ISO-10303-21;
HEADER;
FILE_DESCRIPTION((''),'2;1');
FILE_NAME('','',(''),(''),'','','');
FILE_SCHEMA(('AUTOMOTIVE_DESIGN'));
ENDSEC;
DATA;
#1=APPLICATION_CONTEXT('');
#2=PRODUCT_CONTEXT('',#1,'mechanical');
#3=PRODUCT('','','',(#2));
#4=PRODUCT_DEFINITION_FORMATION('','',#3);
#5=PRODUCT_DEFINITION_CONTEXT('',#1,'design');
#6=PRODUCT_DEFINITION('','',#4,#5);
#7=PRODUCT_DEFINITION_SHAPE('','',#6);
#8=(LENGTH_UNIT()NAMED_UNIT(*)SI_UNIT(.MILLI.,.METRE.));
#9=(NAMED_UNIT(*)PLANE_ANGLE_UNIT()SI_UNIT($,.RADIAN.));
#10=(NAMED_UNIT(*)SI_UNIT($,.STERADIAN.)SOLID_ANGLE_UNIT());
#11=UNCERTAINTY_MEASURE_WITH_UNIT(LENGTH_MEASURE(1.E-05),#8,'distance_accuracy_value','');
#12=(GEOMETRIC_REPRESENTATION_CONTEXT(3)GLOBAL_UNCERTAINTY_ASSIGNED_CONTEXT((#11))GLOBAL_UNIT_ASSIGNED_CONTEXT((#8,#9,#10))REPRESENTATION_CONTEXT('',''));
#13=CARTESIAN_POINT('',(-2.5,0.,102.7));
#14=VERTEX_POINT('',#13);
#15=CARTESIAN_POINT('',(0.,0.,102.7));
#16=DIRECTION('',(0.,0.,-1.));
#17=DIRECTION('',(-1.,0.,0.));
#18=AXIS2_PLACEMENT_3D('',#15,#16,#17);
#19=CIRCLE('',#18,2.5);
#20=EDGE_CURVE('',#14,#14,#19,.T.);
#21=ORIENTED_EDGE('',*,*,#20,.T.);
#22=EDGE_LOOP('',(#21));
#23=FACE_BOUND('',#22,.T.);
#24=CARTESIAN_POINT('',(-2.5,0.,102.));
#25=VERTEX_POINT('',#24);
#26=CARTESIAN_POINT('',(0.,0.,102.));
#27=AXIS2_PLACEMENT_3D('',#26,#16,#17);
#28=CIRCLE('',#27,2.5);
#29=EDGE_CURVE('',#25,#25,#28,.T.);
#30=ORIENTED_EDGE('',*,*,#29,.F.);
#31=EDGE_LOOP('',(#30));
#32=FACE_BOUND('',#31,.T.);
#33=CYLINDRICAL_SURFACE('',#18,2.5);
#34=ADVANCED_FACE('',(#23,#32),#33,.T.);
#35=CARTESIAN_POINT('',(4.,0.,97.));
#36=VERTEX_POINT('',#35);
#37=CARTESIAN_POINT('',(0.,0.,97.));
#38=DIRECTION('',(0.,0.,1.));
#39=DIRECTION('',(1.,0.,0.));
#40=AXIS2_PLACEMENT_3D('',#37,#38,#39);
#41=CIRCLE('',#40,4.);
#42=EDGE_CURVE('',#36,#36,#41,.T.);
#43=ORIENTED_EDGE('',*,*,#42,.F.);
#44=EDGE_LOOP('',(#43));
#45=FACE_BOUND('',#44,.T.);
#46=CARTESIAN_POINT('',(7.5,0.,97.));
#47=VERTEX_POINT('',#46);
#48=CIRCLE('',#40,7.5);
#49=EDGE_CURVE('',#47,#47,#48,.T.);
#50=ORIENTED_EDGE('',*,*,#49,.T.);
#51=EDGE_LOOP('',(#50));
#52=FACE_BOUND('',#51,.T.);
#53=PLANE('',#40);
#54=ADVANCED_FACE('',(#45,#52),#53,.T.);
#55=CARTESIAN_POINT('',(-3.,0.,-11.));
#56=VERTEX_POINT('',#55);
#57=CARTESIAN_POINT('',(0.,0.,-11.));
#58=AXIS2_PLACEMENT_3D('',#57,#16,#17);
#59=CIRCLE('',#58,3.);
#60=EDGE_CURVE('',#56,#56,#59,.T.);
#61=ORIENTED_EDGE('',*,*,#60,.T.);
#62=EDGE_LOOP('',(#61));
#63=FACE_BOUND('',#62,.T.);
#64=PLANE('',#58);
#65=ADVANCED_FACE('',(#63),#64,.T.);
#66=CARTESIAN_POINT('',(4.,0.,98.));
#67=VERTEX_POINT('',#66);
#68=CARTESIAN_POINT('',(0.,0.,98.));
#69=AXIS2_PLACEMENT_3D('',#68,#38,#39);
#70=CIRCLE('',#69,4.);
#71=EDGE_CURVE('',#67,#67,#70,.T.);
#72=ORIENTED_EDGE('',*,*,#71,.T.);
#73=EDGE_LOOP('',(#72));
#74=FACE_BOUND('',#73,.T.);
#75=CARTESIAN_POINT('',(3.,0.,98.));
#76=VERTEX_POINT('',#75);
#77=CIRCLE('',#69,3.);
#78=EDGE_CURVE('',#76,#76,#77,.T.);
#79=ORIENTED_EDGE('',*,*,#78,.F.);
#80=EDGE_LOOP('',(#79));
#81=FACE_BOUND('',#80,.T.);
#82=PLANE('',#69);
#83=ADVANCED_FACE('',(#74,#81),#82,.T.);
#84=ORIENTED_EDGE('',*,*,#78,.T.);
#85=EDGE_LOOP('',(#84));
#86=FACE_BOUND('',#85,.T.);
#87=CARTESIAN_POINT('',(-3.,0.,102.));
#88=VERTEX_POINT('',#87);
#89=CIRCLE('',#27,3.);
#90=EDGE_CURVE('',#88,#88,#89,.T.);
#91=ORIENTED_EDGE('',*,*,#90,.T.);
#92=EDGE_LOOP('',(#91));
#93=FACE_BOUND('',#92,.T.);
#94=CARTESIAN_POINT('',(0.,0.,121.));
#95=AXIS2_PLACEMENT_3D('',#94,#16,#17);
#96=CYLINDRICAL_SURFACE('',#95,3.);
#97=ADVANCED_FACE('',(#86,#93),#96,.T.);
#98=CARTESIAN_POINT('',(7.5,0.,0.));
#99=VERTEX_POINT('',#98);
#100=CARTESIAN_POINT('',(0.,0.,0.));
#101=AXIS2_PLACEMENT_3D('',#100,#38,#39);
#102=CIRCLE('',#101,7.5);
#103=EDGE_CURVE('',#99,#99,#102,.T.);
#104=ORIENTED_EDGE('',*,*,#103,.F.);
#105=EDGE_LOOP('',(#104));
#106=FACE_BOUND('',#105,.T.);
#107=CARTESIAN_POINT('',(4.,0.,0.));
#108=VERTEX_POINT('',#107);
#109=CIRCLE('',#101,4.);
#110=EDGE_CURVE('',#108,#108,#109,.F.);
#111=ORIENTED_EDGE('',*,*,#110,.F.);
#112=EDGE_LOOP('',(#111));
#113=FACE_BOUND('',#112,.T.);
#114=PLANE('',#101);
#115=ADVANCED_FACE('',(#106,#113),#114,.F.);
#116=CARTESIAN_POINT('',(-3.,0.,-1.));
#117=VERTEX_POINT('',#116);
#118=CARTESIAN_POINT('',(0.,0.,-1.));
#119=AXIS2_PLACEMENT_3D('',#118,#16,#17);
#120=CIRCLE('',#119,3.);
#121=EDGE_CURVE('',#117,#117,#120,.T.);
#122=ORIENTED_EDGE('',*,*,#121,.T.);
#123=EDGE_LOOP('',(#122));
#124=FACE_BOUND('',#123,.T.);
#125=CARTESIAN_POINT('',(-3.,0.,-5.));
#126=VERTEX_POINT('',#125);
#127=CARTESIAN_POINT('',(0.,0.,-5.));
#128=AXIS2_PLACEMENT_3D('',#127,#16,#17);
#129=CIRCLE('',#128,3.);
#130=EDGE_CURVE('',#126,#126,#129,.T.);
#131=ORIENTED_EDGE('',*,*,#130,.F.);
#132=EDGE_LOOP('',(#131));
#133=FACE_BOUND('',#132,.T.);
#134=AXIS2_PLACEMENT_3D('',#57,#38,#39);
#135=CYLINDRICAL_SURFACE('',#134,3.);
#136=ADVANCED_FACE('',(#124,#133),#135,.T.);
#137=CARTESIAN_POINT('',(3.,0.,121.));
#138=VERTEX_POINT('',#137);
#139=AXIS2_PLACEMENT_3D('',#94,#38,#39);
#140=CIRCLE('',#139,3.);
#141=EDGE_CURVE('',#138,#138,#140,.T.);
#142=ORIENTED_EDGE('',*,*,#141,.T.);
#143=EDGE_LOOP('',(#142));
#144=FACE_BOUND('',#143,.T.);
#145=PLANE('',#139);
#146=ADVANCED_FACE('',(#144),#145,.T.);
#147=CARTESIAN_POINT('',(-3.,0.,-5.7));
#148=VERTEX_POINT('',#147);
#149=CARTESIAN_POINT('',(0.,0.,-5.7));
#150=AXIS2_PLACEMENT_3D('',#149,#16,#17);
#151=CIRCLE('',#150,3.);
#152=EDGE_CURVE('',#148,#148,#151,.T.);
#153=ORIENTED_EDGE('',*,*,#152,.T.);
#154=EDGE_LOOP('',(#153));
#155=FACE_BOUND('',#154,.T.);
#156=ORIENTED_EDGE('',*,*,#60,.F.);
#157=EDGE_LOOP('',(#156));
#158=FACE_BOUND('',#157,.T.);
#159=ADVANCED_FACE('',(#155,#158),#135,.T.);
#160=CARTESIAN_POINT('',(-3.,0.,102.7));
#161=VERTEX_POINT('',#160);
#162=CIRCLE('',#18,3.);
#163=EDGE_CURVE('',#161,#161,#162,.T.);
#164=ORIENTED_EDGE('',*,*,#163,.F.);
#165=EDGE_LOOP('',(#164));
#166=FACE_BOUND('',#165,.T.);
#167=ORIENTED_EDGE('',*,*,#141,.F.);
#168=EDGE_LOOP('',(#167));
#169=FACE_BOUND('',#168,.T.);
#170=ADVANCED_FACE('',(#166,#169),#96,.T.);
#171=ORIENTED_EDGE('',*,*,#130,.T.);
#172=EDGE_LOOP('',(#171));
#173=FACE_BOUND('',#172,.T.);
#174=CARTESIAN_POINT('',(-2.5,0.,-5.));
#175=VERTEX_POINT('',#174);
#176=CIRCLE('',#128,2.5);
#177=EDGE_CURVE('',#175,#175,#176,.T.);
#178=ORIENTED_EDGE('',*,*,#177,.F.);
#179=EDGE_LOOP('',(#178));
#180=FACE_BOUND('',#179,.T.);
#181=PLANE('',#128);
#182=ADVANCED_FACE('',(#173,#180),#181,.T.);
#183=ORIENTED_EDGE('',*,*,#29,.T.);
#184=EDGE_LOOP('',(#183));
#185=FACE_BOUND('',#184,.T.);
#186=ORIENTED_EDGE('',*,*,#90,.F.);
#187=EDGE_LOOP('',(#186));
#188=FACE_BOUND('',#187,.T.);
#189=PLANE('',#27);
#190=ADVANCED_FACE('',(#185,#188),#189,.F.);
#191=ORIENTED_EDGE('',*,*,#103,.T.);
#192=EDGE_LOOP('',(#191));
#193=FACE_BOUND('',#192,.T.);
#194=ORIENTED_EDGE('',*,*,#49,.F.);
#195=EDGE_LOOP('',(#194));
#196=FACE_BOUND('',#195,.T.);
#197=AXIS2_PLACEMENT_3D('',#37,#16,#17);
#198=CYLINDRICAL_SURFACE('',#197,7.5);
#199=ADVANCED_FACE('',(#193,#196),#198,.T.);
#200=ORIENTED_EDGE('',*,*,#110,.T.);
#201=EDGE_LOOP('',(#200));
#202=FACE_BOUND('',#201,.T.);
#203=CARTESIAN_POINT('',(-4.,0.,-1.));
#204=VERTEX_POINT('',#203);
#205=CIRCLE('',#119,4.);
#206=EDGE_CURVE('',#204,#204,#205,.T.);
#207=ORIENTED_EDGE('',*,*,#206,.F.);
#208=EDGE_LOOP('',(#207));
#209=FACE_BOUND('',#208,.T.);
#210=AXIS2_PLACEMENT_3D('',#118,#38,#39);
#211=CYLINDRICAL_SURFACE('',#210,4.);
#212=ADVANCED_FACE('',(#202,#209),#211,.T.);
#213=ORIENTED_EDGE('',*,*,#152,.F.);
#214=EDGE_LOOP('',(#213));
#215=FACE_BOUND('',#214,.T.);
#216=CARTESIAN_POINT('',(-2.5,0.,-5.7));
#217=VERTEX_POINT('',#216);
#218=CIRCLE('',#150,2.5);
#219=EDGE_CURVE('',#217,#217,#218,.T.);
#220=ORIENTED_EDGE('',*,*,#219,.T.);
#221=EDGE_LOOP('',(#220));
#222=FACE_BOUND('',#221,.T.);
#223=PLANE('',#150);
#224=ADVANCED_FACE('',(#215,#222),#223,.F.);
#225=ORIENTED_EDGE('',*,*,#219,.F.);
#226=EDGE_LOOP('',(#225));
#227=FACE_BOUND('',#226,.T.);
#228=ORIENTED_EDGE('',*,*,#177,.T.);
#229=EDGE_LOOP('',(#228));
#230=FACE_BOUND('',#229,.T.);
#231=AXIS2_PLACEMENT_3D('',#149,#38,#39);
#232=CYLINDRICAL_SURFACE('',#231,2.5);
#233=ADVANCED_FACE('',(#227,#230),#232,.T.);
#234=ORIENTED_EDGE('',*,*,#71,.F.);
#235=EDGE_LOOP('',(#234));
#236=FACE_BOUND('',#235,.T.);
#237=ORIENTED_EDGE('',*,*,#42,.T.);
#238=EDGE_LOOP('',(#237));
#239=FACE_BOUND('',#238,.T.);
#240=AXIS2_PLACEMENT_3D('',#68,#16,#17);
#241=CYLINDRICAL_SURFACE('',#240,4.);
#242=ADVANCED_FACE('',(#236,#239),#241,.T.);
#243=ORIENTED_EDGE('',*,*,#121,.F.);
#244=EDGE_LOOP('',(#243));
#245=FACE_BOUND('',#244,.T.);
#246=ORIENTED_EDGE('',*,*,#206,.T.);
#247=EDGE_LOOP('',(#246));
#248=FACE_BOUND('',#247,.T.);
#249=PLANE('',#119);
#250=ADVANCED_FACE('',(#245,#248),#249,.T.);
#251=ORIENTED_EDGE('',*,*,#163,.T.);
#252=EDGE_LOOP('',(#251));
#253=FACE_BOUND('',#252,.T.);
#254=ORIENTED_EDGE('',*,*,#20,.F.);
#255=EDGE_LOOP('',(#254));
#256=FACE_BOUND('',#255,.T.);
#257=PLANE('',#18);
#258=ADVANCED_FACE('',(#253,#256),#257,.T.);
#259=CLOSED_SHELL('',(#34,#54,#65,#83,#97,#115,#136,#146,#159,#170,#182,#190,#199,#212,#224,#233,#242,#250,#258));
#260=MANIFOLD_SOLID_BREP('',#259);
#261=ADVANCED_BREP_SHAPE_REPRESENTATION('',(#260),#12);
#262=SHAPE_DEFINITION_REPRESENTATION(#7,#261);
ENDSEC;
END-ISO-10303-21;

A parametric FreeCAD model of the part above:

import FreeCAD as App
import Part
import Sketcher
from FreeCAD import Vector
Q = App.Units.Quantity

doc = App.newDocument("Part")
body = doc.addObject("PartDesign::Body", "Body")

sketch1 = doc.addObject("Sketcher::SketchObject", "Sketch")
body.addObject(sketch1)
sketch1.AttachmentSupport = (doc.XY_Plane, [""])
sketch1.MapMode = "FlatFace"
sketch1.addGeometry(Part.Circle(Vector(0, 0, 0), Vector(0, 0, 1), 7.5), False)
sketch1.addConstraint([
    Sketcher.Constraint("Coincident", 0, 3, -1, 1),
    Sketcher.Constraint("Diameter", 0, Q("15 mm")),
])
pad1 = doc.addObject("PartDesign::Pad", "Pad")
body.addObject(pad1)
pad1.Profile = sketch1
pad1.Length = 97

sketch2 = doc.addObject("Sketcher::SketchObject", "Sketch001")
body.addObject(sketch2)
sketch2.AttachmentSupport = (doc.XY_Plane, [""])
sketch2.MapMode = "FlatFace"
sketch2.addGeometry(Part.Circle(Vector(0, 0, 0), Vector(0, 0, 1), 4), False)
sketch2.addConstraint([
    Sketcher.Constraint("Coincident", 0, 3, -1, 1),
    Sketcher.Constraint("Diameter", 0, Q("8 mm")),
])
pad2 = doc.addObject("PartDesign::Pad", "Pad001")
body.addObject(pad2)
pad2.Profile = sketch2
pad2.Length = 1
pad2.Reversed = True

sketch3 = doc.addObject("Sketcher::SketchObject", "Sketch002")
body.addObject(sketch3)
sketch3.AttachmentSupport = (doc.XY_Plane, [""])
sketch3.MapMode = "FlatFace"
sketch3.AttachmentOffset = App.Placement(Vector(0, 0, -1), App.Rotation())
sketch3.addGeometry(Part.Circle(Vector(0, 0, 0), Vector(0, 0, 1), 3), False)
sketch3.addConstraint([
    Sketcher.Constraint("Coincident", 0, 3, -1, 1),
    Sketcher.Constraint("Diameter", 0, Q("6 mm")),
])
pad3 = doc.addObject("PartDesign::Pad", "Pad002")
body.addObject(pad3)
pad3.Profile = sketch3
pad3.Length = 10
pad3.Reversed = True

sketch4 = doc.addObject("Sketcher::SketchObject", "Sketch003")
body.addObject(sketch4)
sketch4.AttachmentSupport = (doc.XY_Plane, [""])
sketch4.MapMode = "FlatFace"
sketch4.AttachmentOffset = App.Placement(Vector(0, 0, 97), App.Rotation())
sketch4.addGeometry(Part.Circle(Vector(0, 0, 0), Vector(0, 0, 1), 4), False)
sketch4.addConstraint([
    Sketcher.Constraint("Coincident", 0, 3, -1, 1),
    Sketcher.Constraint("Diameter", 0, Q("8 mm")),
])
pad4 = doc.addObject("PartDesign::Pad", "Pad003")
body.addObject(pad4)
pad4.Profile = sketch4
pad4.Length = 1

sketch5 = doc.addObject("Sketcher::SketchObject", "Sketch004")
body.addObject(sketch5)
sketch5.AttachmentSupport = (doc.XY_Plane, [""])
sketch5.MapMode = "FlatFace"
sketch5.AttachmentOffset = App.Placement(Vector(0, 0, 98), App.Rotation())
sketch5.addGeometry(Part.Circle(Vector(0, 0, 0), Vector(0, 0, 1), 3), False)
sketch5.addConstraint([
    Sketcher.Constraint("Coincident", 0, 3, -1, 1),
    Sketcher.Constraint("Diameter", 0, Q("6 mm")),
])
pad5 = doc.addObject("PartDesign::Pad", "Pad004")
body.addObject(pad5)
pad5.Profile = sketch5
pad5.Length = 23

sketch6 = doc.addObject("Sketcher::SketchObject", "Sketch005")
body.addObject(sketch6)
sketch6.AttachmentSupport = (doc.XY_Plane, [""])
sketch6.MapMode = "FlatFace"
sketch6.AttachmentOffset = App.Placement(Vector(0, 0, -5), App.Rotation())
sketch6.addGeometry([
    Part.Circle(Vector(0, 0, 0), Vector(0, 0, 1), 6.147127),
    Part.Circle(Vector(0, 0, 0), Vector(0, 0, 1), 2.5),
], False)
sketch6.addConstraint([
    Sketcher.Constraint("Coincident", 0, 3, -1, 1),
    Sketcher.Constraint("Coincident", 1, 3, -1, 1),
    Sketcher.Constraint("Diameter", 1, Q("5 mm")),
    Sketcher.Constraint("Diameter", 0, Q("12.294255 mm")),
])
pocket1 = doc.addObject("PartDesign::Pocket", "Pocket")
body.addObject(pocket1)
pocket1.Profile = sketch6
pocket1.Length = 0.7

sketch7 = doc.addObject("Sketcher::SketchObject", "Sketch006")
body.addObject(sketch7)
sketch7.AttachmentSupport = (doc.XY_Plane, [""])
sketch7.MapMode = "FlatFace"
sketch7.AttachmentOffset = App.Placement(Vector(0, 0, 102), App.Rotation())
sketch7.addGeometry([
    Part.Circle(Vector(0, 0, 0), Vector(0, 0, 1), 6.101942),
    Part.Circle(Vector(0, 0, 0), Vector(0, 0, 1), 2.5),
], False)
sketch7.addConstraint([
    Sketcher.Constraint("Coincident", 0, 3, -1, 1),
    Sketcher.Constraint("Coincident", 1, 3, -1, 1),
    Sketcher.Constraint("Diameter", 1, Q("5 mm")),
    Sketcher.Constraint("Diameter", 0, Q("12.203885 mm")),
])
pocket2 = doc.addObject("PartDesign::Pocket", "Pocket001")
body.addObject(pocket2)
pocket2.Profile = sketch7
pocket2.Length = 0.7
pocket2.Reversed = True

doc.recompute()
